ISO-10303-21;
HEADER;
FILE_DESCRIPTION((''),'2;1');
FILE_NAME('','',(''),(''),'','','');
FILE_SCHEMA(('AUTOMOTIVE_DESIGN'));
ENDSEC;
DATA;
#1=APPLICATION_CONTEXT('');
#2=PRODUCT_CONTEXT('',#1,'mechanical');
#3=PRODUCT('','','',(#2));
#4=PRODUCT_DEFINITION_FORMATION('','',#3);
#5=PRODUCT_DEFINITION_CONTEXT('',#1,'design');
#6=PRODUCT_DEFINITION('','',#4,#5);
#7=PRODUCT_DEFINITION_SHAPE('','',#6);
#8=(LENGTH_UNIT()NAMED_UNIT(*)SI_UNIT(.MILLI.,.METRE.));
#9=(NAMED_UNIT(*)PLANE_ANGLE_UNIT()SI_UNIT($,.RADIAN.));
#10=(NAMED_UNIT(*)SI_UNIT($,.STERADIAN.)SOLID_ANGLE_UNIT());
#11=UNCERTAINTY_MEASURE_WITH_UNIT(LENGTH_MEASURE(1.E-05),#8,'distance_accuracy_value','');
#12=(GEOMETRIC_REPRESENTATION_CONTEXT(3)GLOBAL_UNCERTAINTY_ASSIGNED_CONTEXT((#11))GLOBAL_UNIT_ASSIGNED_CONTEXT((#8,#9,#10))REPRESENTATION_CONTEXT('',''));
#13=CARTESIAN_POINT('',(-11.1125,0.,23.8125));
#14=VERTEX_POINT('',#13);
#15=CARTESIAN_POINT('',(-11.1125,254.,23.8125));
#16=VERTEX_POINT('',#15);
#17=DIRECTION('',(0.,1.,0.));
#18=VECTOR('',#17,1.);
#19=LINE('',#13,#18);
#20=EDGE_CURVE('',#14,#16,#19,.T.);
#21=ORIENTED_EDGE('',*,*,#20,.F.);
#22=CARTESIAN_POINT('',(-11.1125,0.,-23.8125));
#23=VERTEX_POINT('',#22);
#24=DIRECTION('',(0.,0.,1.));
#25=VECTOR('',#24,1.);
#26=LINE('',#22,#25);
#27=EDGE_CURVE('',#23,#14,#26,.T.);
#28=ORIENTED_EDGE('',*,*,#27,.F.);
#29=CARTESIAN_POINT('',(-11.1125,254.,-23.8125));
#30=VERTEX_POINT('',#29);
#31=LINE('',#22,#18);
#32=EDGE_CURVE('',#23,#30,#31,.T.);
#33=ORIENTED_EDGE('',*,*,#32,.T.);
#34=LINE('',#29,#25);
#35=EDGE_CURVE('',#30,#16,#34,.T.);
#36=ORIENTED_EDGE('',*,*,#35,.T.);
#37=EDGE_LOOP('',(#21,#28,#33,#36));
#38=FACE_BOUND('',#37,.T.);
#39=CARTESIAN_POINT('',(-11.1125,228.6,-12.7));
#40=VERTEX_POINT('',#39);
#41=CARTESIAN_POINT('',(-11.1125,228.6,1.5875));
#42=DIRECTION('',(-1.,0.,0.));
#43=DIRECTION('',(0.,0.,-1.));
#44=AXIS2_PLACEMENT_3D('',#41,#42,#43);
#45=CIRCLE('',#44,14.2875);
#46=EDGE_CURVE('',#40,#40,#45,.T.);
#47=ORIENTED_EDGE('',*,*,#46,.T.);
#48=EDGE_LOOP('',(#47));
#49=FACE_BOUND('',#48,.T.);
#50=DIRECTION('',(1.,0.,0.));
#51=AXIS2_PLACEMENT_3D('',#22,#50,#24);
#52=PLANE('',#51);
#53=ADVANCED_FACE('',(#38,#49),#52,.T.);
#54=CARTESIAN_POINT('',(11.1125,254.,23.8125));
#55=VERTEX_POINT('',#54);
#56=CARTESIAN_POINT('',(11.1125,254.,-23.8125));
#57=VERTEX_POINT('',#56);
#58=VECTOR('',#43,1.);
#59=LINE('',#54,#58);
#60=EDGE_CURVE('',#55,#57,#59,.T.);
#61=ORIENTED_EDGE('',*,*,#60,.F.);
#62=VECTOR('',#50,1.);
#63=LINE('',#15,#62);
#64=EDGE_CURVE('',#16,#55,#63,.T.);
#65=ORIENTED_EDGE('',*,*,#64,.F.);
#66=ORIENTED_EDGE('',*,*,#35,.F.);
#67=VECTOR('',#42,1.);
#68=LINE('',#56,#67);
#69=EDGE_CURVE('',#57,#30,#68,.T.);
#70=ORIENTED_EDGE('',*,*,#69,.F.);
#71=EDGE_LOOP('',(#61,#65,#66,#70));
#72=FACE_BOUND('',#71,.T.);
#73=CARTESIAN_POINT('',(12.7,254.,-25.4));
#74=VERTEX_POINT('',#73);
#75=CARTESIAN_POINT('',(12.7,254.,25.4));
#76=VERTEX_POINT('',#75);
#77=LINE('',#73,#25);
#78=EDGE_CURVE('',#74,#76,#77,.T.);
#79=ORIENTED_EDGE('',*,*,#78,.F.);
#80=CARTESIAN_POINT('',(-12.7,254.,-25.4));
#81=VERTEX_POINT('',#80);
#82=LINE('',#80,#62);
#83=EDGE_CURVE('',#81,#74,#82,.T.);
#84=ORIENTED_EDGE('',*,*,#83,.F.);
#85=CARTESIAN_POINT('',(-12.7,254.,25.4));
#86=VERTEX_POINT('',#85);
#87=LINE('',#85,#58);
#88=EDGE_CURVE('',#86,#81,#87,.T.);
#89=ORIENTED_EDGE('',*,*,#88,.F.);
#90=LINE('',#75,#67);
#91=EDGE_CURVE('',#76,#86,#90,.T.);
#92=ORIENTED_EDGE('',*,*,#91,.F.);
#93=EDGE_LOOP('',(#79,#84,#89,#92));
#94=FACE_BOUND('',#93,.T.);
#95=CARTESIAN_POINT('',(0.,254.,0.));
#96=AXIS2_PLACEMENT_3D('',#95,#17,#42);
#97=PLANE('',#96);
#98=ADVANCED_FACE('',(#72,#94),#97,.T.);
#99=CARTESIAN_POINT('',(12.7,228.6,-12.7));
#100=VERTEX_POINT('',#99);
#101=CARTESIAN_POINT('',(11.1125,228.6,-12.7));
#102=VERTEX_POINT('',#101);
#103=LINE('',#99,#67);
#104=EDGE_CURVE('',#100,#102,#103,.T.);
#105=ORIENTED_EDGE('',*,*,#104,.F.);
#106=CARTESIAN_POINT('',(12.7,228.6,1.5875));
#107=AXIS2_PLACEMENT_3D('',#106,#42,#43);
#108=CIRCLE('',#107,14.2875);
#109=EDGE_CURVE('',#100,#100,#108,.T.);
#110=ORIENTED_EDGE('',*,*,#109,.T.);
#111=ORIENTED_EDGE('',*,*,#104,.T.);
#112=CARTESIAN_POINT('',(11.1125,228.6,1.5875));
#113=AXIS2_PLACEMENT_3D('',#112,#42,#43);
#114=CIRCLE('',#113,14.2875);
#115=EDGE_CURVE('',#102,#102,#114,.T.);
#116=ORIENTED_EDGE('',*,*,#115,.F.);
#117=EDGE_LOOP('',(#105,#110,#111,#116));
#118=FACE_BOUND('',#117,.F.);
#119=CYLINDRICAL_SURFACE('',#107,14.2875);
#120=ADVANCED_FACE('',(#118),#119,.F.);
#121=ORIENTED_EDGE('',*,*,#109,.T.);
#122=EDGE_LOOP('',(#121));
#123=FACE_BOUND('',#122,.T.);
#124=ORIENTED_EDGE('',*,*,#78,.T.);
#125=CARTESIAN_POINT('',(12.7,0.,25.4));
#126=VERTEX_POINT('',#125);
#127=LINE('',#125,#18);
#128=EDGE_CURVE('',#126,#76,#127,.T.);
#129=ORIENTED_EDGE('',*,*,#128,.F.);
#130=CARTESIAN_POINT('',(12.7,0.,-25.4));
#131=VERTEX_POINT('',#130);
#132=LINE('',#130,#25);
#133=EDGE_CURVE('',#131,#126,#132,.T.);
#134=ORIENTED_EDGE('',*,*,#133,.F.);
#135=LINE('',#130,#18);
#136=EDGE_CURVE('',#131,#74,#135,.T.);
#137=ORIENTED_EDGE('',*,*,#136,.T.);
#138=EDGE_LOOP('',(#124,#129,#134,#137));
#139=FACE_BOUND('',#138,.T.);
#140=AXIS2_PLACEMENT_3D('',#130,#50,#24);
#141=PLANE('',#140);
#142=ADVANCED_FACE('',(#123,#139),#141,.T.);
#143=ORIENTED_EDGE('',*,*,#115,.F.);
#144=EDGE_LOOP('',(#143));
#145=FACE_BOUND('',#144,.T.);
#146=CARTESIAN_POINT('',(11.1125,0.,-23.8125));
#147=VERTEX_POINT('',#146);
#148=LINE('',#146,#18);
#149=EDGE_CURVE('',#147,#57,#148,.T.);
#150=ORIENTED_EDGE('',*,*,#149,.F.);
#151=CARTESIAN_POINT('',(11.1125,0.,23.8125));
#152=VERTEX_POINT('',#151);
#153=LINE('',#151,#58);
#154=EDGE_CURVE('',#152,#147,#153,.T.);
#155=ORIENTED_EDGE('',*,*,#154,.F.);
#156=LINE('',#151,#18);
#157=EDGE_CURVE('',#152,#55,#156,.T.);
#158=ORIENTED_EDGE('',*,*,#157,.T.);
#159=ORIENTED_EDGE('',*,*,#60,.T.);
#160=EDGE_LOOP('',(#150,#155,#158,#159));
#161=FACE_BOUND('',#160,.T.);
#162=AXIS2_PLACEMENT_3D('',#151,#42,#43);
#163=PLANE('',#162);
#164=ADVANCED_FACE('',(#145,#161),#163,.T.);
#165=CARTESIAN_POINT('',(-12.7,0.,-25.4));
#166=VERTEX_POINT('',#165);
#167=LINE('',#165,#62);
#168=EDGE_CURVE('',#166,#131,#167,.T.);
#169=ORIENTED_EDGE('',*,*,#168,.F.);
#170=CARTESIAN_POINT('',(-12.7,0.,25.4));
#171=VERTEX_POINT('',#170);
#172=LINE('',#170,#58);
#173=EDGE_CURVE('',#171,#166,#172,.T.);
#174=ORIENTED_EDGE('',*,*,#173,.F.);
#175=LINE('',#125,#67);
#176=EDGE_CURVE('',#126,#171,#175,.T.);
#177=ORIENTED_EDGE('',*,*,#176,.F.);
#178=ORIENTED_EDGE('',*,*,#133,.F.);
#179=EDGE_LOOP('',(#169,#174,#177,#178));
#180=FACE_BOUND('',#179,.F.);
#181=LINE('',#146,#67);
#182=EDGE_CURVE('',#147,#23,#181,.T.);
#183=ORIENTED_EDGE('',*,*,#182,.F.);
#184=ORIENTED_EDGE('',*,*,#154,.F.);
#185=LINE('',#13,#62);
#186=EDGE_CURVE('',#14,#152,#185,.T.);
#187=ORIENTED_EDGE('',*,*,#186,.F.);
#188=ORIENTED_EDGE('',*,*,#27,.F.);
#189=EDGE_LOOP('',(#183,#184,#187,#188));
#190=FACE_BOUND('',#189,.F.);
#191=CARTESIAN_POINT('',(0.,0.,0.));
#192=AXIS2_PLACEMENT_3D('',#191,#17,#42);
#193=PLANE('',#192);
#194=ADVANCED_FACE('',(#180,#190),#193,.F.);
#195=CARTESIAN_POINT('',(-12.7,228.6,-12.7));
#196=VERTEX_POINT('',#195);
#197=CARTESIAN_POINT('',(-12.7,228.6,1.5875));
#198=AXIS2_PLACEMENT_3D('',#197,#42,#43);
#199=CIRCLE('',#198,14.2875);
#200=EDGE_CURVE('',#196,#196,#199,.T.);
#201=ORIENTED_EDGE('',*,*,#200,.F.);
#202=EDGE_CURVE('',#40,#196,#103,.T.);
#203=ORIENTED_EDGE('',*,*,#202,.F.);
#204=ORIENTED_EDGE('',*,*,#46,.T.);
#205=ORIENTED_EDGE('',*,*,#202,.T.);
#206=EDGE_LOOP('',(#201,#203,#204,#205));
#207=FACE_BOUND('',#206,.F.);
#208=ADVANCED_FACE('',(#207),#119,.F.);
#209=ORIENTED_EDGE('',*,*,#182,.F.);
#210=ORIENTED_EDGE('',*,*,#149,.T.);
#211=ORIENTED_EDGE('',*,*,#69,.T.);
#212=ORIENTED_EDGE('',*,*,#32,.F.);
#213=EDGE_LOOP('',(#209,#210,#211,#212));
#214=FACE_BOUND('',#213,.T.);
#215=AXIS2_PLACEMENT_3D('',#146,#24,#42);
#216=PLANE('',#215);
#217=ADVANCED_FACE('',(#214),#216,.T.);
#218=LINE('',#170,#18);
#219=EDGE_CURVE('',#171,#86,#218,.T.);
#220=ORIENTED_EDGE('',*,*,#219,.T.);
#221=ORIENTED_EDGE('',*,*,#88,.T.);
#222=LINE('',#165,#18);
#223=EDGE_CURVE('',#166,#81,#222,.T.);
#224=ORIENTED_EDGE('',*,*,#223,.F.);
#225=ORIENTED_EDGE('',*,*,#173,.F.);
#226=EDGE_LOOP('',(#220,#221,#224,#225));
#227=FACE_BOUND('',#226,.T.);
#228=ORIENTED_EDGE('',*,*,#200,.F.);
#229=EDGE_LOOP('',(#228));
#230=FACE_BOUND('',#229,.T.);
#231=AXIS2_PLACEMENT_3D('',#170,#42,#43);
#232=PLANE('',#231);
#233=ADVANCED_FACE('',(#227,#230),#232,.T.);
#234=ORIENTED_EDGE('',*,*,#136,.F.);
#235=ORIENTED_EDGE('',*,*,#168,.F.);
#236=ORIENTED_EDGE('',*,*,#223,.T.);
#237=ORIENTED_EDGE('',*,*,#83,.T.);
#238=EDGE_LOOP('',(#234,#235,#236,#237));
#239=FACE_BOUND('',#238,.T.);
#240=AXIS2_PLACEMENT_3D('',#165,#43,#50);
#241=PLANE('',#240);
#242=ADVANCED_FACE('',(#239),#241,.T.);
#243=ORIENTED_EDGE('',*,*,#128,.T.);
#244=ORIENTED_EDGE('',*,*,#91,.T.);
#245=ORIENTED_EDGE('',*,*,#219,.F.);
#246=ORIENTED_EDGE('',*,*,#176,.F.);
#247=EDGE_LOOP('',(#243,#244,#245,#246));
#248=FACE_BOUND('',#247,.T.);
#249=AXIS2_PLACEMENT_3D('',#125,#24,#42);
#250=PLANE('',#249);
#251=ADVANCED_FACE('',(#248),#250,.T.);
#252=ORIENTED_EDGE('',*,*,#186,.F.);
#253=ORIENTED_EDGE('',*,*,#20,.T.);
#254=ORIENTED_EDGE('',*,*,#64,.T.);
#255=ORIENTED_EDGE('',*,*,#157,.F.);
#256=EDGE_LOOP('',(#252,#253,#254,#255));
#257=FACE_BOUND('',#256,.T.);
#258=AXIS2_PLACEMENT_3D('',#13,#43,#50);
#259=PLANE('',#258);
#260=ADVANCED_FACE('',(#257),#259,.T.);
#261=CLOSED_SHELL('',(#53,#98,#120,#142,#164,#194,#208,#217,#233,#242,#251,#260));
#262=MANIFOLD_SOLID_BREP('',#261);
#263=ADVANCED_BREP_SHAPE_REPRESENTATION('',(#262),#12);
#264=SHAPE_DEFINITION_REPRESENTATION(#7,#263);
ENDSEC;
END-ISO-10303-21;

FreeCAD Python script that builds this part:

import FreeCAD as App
import Part
import Sketcher

V = App.Vector
Q = App.Units.Quantity


def add_polygon(sketch, points):
    """Adds a closed chain of lines whose ends are joined by coincident constraints."""
    first, n = sketch.GeometryCount, len(points)
    for a, b in zip(points, points[1:] + points[:1]):
        sketch.addGeometry(Part.LineSegment(App.Vector(*a, 0), App.Vector(*b, 0)), False)
    for i in range(n):
        sketch.addConstraint(Sketcher.Constraint("Coincident", first + i, 2, first + (i + 1) % n, 1))

doc = App.newDocument("Part")
body = doc.addObject("PartDesign::Body", "Body")

# Sketch on XZ plane
sketch1 = body.newObject("Sketcher::SketchObject", "Sketch")
sketch1.AttachmentSupport = (doc.getObject("XZ_Plane"), [""])
sketch1.MapMode = "FlatFace"
add_polygon(sketch1, [(-13, 25), (13, 25), (13, -25), (-13, -25)])  # lines 0-3
add_polygon(sketch1, [(11, 24), (-11, 24), (-11, -24), (11, -24)])  # lines 4-7
sketch1.addConstraint([
    Sketcher.Constraint("Horizontal", 0),
    Sketcher.Constraint("Vertical", 1),
    Sketcher.Constraint("Horizontal", 2),
    Sketcher.Constraint("Vertical", 3),
    Sketcher.Constraint("Horizontal", 4),
    Sketcher.Constraint("Vertical", 5),
    Sketcher.Constraint("Horizontal", 6),
    Sketcher.Constraint("Vertical", 7),
    Sketcher.Constraint("Symmetric", 0, 2, 2, 2, -1, 1),
    Sketcher.Constraint("Symmetric", 4, 2, 6, 2, -1, 1),
    Sketcher.Constraint("DistanceX", 0, 1, 0, 2, Q("1 in")),
    Sketcher.Constraint("DistanceY", 1, 2, 1, 1, Q("2 in")),
    Sketcher.Constraint("DistanceX", 4, 2, 4, 1, Q("0.875 in")),
    Sketcher.Constraint("DistanceY", 5, 2, 5, 1, Q("1.875 in")),
])
pad1 = body.newObject("PartDesign::Pad", "Pad")
pad1.Profile = sketch1
pad1.Length = Q("10 in")
pad1.Reversed = True

# Sketch on YZ plane
sketch2 = body.newObject("Sketcher::SketchObject", "Sketch001")
sketch2.AttachmentSupport = (doc.getObject("YZ_Plane"), [""])
sketch2.MapMode = "FlatFace"
sketch2.AttachmentOffset = App.Placement(V(0, 0, 0.5 * 25.4), App.Rotation())
sketch2.addGeometry(Part.Circle(V(229, 2, 0), V(0, 0, 1), 14), False)
sketch2.addConstraint([
    Sketcher.Constraint("Diameter", 0, Q("1.125 in")),
    Sketcher.Constraint("DistanceX", -1, 1, 0, 3, Q("9 in")),
    Sketcher.Constraint("DistanceY", -1, 1, 0, 3, Q("0.0625 in")),
])
doc.recompute()
hole = body.newObject("PartDesign::Hole", "Hole")
hole.Profile = sketch2
hole.ThreadType = "None"
hole.Diameter = Q("1.125 in")
hole.DepthType = "ThroughAll"

doc.recompute()
